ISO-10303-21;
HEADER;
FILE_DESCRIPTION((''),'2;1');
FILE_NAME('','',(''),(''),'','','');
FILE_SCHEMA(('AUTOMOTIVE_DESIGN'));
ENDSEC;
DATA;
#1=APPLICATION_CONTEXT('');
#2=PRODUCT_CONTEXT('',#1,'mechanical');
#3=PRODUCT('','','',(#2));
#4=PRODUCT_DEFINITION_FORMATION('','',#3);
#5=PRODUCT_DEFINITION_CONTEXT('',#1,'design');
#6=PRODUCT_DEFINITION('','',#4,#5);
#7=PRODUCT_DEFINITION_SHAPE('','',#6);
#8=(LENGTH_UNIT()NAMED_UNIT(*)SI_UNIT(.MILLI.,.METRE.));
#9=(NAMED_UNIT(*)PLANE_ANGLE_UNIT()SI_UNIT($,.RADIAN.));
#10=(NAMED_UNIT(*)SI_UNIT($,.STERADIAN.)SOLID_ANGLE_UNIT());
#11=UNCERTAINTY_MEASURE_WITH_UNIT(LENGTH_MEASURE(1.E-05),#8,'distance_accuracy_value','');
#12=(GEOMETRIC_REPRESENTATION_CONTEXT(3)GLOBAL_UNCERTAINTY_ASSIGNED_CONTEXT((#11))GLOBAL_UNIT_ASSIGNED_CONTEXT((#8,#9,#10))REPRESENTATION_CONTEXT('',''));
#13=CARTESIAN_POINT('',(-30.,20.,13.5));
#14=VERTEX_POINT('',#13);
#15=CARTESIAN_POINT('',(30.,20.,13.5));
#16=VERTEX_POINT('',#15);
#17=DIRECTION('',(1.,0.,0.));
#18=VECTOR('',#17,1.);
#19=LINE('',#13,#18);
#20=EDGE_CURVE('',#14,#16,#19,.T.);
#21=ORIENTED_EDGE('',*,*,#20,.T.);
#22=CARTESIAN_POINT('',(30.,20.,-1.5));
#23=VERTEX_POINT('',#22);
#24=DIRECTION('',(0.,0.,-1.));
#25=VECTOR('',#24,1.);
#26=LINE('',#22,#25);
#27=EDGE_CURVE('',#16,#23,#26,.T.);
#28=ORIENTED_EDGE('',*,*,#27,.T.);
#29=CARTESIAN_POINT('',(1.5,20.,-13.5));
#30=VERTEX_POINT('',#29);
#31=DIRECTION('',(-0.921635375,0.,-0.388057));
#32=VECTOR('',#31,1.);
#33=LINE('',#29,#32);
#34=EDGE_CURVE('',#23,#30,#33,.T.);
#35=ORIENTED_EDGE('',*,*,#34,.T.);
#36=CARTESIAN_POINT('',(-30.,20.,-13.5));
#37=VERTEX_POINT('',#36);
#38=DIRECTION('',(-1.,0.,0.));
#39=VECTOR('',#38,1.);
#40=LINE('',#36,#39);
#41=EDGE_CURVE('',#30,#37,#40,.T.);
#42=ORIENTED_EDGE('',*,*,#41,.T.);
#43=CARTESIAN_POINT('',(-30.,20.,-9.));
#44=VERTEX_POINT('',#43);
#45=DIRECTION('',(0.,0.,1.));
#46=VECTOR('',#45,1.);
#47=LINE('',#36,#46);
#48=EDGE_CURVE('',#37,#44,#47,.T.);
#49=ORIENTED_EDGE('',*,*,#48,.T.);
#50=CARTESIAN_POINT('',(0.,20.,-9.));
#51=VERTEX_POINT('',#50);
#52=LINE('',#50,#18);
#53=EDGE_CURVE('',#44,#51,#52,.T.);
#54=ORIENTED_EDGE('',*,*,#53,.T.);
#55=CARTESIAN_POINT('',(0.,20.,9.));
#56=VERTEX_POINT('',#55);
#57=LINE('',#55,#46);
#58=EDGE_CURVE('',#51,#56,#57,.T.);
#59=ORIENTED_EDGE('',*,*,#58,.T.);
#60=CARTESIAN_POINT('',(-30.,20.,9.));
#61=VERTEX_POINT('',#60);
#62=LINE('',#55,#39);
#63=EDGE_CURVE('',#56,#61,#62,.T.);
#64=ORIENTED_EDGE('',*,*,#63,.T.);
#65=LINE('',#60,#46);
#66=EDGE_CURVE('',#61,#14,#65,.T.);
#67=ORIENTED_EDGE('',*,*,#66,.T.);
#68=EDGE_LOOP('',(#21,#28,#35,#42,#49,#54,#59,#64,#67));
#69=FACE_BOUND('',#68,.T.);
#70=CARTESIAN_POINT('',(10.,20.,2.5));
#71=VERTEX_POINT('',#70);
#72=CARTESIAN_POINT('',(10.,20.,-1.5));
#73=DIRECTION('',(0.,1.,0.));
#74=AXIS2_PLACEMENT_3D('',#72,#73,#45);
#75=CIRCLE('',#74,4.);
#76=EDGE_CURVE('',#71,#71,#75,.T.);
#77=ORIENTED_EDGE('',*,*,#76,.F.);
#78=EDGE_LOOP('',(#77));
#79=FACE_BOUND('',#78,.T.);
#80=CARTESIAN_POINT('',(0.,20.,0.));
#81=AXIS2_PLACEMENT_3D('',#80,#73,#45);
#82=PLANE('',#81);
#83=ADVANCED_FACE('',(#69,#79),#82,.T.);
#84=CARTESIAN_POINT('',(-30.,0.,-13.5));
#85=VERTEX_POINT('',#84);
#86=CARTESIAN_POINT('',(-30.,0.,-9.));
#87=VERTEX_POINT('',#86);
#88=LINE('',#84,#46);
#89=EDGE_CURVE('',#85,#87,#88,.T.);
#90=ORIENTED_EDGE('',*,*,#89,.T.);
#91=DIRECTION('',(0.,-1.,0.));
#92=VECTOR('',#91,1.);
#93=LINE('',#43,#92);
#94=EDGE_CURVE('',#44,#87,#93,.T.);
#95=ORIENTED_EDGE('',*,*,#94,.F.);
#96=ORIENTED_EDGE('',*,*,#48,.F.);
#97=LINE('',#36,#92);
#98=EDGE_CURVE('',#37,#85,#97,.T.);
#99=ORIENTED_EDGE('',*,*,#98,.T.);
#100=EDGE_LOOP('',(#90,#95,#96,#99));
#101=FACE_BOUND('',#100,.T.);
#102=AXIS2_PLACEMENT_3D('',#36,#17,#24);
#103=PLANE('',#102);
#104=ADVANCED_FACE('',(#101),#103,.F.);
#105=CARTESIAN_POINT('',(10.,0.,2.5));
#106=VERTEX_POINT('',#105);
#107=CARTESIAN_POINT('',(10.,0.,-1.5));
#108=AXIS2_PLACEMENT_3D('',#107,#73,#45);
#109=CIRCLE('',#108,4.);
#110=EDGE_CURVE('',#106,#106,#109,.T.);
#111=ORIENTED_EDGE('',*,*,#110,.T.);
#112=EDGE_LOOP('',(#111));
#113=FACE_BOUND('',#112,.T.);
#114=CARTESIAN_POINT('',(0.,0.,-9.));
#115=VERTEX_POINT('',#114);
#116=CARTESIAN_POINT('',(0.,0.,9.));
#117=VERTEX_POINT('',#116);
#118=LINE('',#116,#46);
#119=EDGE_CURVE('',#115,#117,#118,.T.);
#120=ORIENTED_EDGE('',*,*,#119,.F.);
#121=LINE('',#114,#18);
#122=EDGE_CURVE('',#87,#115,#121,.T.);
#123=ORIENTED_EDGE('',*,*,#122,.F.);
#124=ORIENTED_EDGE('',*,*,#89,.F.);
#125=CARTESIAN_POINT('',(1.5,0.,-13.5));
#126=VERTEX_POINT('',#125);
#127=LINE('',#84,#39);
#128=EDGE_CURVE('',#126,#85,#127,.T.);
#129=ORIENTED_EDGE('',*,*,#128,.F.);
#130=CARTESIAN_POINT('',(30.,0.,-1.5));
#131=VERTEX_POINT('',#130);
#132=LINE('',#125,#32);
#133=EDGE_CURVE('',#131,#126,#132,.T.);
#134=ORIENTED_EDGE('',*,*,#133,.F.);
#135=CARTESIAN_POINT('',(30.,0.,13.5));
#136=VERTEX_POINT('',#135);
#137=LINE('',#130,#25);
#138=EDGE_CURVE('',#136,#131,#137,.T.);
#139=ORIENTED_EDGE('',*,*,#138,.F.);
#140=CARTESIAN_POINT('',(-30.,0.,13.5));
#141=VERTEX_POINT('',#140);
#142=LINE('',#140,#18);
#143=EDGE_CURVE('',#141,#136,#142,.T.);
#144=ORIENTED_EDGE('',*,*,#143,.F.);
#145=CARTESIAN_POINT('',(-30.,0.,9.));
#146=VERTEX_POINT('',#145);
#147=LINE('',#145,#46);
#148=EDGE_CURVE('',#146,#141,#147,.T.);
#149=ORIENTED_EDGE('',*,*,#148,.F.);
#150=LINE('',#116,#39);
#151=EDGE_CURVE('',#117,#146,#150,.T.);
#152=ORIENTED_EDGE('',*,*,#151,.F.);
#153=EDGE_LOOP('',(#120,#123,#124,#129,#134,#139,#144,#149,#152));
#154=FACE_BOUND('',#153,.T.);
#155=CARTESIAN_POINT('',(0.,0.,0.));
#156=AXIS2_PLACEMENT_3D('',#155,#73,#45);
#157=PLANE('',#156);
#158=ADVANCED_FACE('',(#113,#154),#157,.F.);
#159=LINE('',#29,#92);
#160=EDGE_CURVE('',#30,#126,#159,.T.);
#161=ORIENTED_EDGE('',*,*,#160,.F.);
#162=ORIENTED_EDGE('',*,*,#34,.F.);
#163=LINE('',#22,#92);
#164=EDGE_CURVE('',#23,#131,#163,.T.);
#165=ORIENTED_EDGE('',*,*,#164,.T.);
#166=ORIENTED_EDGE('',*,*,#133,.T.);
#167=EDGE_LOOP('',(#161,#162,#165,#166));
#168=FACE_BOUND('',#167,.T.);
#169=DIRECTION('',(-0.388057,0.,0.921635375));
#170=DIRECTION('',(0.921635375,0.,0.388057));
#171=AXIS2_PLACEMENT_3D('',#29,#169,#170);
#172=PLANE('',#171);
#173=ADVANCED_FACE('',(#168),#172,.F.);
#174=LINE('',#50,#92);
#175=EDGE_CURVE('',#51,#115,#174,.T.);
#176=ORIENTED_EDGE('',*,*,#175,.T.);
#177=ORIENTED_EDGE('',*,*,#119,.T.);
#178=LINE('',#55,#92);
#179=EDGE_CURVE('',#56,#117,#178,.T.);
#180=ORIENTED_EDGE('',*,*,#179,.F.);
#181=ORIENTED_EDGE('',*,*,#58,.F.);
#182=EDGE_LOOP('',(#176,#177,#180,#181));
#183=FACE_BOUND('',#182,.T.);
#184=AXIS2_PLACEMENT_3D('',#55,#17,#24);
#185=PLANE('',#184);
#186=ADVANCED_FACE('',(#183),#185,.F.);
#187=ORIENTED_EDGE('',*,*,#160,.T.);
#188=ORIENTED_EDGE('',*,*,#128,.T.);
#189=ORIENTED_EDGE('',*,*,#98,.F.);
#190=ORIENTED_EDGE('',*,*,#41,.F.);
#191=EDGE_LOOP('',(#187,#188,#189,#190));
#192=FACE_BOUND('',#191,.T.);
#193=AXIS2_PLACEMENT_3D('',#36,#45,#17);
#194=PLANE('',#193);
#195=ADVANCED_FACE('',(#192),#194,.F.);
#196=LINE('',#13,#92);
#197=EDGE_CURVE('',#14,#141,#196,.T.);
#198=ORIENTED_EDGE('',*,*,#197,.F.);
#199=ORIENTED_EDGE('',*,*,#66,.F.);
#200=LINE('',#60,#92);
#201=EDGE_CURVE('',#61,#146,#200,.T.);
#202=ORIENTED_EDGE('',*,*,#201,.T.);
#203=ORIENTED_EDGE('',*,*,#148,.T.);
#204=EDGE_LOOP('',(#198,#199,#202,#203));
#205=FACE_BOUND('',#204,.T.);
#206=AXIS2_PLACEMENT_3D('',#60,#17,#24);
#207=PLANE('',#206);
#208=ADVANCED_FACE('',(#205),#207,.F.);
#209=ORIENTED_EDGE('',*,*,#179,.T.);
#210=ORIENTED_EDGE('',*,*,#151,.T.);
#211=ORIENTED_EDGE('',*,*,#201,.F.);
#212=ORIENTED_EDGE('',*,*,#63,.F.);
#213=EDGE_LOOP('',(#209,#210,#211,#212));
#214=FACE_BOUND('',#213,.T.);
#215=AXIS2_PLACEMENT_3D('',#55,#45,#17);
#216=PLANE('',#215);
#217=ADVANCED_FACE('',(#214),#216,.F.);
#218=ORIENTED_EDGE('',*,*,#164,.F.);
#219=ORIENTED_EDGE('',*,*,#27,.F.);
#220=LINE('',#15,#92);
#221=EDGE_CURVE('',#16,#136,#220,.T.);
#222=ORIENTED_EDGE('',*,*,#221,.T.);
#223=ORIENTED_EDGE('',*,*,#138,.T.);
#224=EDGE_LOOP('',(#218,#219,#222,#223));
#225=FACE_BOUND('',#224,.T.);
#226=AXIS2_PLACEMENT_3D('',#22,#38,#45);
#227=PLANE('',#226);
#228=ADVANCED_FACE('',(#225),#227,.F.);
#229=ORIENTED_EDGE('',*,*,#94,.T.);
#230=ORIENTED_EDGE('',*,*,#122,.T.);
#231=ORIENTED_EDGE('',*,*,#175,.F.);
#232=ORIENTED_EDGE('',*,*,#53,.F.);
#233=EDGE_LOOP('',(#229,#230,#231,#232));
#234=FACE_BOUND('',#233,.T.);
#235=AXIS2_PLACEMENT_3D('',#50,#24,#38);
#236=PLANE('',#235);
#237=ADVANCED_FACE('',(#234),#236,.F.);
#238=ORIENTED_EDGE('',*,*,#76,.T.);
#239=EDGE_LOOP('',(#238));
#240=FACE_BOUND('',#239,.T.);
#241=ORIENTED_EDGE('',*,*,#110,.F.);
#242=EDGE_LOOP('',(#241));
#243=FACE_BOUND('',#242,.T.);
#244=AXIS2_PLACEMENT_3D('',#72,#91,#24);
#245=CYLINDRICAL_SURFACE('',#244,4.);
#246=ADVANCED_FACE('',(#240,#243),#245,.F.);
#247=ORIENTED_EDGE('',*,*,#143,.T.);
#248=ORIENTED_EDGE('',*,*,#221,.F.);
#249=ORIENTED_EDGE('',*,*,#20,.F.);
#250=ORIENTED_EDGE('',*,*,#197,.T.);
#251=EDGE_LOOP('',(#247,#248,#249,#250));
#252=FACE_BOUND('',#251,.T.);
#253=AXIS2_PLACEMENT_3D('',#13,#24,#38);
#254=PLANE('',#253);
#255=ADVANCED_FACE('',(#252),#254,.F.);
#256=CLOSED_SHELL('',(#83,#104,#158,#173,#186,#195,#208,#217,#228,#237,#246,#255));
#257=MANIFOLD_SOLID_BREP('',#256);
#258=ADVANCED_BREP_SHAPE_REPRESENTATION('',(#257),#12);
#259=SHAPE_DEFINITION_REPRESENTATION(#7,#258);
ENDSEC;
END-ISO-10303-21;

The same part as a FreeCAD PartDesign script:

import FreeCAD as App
import Part
import Sketcher

V = App.Vector
Q = App.Units.Quantity


def add_polygon(sketch, points):
    """Adds a closed chain of lines whose ends are joined by coincident constraints."""
    first, n = sketch.GeometryCount, len(points)
    for a, b in zip(points, points[1:] + points[:1]):
        sketch.addGeometry(Part.LineSegment(App.Vector(*a, 0), App.Vector(*b, 0)), False)
    for i in range(n):
        sketch.addConstraint(Sketcher.Constraint("Coincident", first + i, 2, first + (i + 1) % n, 1))

doc = App.newDocument("Part")
body = doc.addObject("PartDesign::Body", "Body")

# Sketch on XZ plane
sketch1 = body.newObject("Sketcher::SketchObject", "Sketch")
sketch1.AttachmentSupport = (doc.getObject("XZ_Plane"), [""])
sketch1.MapMode = "FlatFace"
add_polygon(sketch1, [(1.5, -13.5), (-30, -13.5), (-30, -9), (0, -9), (0, 9), (-30, 9), (-30, 13.5), (30, 13.5), (30, -1.5)])  # lines 0-8
sketch1.addGeometry(Part.Circle(V(10, -1.5, 0), V(0, 0, 1), 4), False)  # 9
sketch1.addConstraint([
    Sketcher.Constraint("Horizontal", 0),
    Sketcher.Constraint("Vertical", 1),
    Sketcher.Constraint("Horizontal", 2),
    Sketcher.Constraint("Vertical", 3),
    Sketcher.Constraint("Horizontal", 4),
    Sketcher.Constraint("Vertical", 5),
    Sketcher.Constraint("Horizontal", 6),
    Sketcher.Constraint("Vertical", 7),
    Sketcher.Constraint("Symmetric", 2, 2, 3, 2, -1, 1),
    Sketcher.Constraint("Symmetric", 0, 2, 6, 2, -1, 1),
    Sketcher.Constraint("Horizontal", 9, 3, 7, 2),
    Sketcher.Constraint("Vertical", 1, 2, 4, 2),
    Sketcher.Constraint("Diameter", 9, Q("8 mm")),
    Sketcher.Constraint("DistanceX", 2, 1, 2, 2, Q("30 mm")),
    Sketcher.Constraint("DistanceY", 3, 1, 3, 2, Q("18 mm")),
    Sketcher.Constraint("DistanceY", 7, 2, 7, 1, Q("15 mm")),
    Sketcher.Constraint("DistanceX", 0, 2, 0, 1, Q("31.5 mm")),
    Sketcher.Constraint("DistanceY", 1, 1, 1, 2, Q("4.5 mm")),
    Sketcher.Constraint("DistanceX", -1, 1, 9, 3, Q("10 mm")),
])
pad1 = body.newObject("PartDesign::Pad", "Pad")
pad1.Profile = sketch1
pad1.Length = 20
pad1.Reversed = True

doc.recompute()
